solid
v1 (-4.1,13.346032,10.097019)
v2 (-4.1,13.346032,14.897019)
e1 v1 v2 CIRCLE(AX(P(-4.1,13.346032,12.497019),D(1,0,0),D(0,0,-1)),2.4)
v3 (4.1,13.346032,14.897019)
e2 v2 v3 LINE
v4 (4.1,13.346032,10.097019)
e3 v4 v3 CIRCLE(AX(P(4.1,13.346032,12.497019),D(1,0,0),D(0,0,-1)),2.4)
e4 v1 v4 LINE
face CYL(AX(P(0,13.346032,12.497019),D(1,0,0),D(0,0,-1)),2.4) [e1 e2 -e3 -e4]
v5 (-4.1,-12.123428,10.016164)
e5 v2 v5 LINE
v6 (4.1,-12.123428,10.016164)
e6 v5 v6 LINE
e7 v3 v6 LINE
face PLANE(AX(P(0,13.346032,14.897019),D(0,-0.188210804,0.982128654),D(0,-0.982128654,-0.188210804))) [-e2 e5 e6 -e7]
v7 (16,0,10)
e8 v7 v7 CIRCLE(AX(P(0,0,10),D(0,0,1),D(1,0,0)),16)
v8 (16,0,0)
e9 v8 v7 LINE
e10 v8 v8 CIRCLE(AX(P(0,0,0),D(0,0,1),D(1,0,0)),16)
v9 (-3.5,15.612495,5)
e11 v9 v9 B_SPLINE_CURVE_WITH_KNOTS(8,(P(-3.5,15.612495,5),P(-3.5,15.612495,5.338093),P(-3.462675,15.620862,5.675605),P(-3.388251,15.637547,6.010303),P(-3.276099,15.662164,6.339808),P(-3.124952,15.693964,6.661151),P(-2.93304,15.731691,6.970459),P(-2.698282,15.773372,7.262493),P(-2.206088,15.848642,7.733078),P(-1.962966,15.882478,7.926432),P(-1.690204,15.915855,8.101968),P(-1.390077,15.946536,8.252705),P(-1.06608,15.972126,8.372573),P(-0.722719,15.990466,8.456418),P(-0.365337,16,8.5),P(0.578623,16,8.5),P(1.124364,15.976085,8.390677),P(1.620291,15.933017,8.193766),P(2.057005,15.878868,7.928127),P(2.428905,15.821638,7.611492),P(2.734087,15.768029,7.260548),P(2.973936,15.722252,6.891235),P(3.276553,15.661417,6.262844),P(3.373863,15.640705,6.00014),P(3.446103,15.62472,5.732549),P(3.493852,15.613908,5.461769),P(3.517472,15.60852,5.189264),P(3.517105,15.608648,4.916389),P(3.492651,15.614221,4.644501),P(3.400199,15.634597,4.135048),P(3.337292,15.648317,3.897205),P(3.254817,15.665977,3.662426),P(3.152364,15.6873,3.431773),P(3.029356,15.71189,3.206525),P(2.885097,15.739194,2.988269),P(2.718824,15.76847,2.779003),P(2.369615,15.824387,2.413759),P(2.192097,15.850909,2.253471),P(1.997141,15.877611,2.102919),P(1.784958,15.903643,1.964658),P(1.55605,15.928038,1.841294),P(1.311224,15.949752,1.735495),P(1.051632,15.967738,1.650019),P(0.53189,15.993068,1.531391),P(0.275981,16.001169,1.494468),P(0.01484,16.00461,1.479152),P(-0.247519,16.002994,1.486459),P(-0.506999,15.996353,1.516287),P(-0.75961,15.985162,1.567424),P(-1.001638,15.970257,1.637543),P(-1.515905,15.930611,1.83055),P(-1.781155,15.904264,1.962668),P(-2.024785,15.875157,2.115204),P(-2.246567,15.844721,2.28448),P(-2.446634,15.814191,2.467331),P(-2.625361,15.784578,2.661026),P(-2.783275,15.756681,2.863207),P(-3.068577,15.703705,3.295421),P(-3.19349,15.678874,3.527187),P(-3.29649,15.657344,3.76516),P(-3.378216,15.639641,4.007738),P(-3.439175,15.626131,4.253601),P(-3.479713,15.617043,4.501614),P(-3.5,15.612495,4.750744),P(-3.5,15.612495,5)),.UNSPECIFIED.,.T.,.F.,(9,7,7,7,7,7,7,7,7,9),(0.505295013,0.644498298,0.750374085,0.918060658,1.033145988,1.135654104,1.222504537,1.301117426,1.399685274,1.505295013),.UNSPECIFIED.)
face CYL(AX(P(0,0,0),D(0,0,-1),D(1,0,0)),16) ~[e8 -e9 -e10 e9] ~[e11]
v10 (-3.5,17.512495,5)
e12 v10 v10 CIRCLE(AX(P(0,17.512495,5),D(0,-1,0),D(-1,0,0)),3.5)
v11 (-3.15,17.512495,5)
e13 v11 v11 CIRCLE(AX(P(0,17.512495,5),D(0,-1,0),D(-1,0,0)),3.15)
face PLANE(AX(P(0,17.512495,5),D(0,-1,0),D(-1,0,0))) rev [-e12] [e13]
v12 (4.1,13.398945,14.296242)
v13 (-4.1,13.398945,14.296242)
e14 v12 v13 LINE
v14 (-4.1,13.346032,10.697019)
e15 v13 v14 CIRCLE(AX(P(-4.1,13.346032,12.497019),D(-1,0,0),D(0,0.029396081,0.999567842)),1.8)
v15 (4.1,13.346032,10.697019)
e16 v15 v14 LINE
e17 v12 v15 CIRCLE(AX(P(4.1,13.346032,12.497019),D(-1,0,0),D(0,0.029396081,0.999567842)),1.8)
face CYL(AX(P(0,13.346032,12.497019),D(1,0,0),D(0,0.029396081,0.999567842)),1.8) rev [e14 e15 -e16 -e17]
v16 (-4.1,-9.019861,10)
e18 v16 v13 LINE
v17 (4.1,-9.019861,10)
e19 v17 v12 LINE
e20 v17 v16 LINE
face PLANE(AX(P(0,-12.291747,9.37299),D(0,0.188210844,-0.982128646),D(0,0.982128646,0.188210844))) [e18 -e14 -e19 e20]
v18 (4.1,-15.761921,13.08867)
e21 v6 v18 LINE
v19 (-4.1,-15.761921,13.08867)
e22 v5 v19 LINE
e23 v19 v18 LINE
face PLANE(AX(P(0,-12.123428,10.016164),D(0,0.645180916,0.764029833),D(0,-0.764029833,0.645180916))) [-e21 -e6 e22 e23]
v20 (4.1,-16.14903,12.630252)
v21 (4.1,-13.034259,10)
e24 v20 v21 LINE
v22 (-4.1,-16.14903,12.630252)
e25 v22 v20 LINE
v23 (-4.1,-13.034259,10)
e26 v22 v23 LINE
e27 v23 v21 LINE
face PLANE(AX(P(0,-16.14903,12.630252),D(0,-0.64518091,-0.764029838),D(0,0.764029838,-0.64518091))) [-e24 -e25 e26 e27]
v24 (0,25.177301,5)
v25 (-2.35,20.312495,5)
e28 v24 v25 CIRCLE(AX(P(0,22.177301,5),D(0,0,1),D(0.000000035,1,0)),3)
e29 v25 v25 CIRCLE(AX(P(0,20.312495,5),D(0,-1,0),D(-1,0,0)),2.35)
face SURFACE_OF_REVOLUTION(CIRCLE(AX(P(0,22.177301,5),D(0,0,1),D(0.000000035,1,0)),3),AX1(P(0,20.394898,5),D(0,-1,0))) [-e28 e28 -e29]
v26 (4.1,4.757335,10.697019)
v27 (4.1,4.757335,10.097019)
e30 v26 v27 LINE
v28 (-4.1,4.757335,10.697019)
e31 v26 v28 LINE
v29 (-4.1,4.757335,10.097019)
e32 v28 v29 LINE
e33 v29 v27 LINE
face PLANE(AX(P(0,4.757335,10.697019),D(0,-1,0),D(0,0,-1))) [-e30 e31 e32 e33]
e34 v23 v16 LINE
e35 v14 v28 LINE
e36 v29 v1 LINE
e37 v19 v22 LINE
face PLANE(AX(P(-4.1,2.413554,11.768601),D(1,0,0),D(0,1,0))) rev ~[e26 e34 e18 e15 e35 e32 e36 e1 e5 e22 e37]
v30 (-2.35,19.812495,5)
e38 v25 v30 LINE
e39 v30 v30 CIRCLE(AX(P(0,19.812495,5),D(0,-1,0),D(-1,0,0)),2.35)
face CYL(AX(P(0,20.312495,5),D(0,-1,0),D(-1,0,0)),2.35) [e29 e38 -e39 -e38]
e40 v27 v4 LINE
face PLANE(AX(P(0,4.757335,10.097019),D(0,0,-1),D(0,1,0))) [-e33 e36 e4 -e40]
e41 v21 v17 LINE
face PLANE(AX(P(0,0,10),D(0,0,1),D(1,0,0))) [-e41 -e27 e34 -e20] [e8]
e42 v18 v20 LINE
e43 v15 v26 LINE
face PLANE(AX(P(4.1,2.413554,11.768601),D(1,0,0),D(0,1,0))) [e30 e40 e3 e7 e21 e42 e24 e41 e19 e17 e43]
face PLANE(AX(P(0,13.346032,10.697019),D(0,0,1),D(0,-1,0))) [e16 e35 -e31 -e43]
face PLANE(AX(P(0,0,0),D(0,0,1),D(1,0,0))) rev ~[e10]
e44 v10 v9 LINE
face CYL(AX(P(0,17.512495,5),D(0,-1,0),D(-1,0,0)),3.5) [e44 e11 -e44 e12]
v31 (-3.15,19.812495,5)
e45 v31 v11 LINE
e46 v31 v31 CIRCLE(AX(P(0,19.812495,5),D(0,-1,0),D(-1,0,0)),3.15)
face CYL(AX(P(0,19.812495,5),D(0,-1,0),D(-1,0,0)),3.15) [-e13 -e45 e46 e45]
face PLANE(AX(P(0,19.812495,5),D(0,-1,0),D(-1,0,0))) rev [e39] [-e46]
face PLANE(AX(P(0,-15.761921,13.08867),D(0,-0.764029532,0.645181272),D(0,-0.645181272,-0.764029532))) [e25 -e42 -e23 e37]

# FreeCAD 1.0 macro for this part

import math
import FreeCAD as App
import Part
import Sketcher
from FreeCAD import Vector

doc = App.newDocument("Part")
body = doc.addObject("PartDesign::Body", "Body")

# Sketch on XY plane
sketch1 = body.newObject("Sketcher::SketchObject", "Sketch")
sketch1.AttachmentSupport = (doc.getObject("XY_Plane"), [""])
sketch1.MapMode = "FlatFace"
sketch1.addGeometry(Part.Circle(Vector(0, 0, 0), Vector(0, 0, 1), 16), False)
sketch1.addConstraint(Sketcher.Constraint("Coincident", 0, 3, -1, 1))
sketch1.addConstraint(Sketcher.Constraint("Diameter", 0, 32.0))
pad1 = body.newObject("PartDesign::Pad", "Pad")
pad1.Profile = sketch1
pad1.Length = 10

# Sketch on YZ plane
sketch2 = body.newObject("Sketcher::SketchObject", "Sketch001")
sketch2.AttachmentSupport = (doc.getObject("YZ_Plane"), [""])
sketch2.MapMode = "FlatFace"
sketch2.addGeometry(Part.LineSegment(Vector(4.757335, 10.697019, 0), Vector(4.757335, 10.097019, 0)), False)
sketch2.addGeometry(Part.LineSegment(Vector(4.757335, 10.097019, 0), Vector(13.346032, 10.097019, 0)), False)
sketch2.addGeometry(Part.ArcOfCircle(Part.Circle(Vector(13.346032, 12.497019, 0), Vector(0, 0, 1), 2.4), math.radians(-90), math.radians(90)), False)
sketch2.addGeometry(Part.LineSegment(Vector(13.346032, 14.897019, 0), Vector(-12.123428, 10.016164, 0)), False)
sketch2.addGeometry(Part.LineSegment(Vector(-12.123428, 10.016164, 0), Vector(-15.761921, 13.08867, 0)), False)
sketch2.addGeometry(Part.LineSegment(Vector(-15.761921, 13.08867, 0), Vector(-16.14903, 12.630252, 0)), False)
sketch2.addGeometry(Part.LineSegment(Vector(-16.14903, 12.630252, 0), Vector(-12.291747, 9.37299, 0)), False)
sketch2.addGeometry(Part.LineSegment(Vector(-12.291747, 9.37299, 0), Vector(13.398945, 14.296242, 0)), False)
sketch2.addGeometry(Part.ArcOfCircle(Part.Circle(Vector(13.346032, 12.497019, 0), Vector(0, 0, 1), 1.8), math.radians(-90.000001), math.radians(88.315486)), False)
sketch2.addGeometry(Part.LineSegment(Vector(13.346032, 10.697019, 0), Vector(4.757335, 10.697019, 0)), False)
sketch2.addConstraint(Sketcher.Constraint("Coincident", 0, 2, 1, 1))
sketch2.addConstraint(Sketcher.Constraint("Tangent", 1, 2, 2, 1))
sketch2.addConstraint(Sketcher.Constraint("Coincident", 2, 2, 3, 1))
sketch2.addConstraint(Sketcher.Constraint("Coincident", 3, 2, 4, 1))
sketch2.addConstraint(Sketcher.Constraint("Coincident", 4, 2, 5, 1))
sketch2.addConstraint(Sketcher.Constraint("Coincident", 5, 2, 6, 1))
sketch2.addConstraint(Sketcher.Constraint("Coincident", 6, 2, 7, 1))
sketch2.addConstraint(Sketcher.Constraint("Coincident", 7, 2, 8, 2))
sketch2.addConstraint(Sketcher.Constraint("Tangent", 8, 1, 9, 1))
sketch2.addConstraint(Sketcher.Constraint("Coincident", 9, 2, 0, 1))
sketch2.addConstraint(Sketcher.Constraint("Vertical", 0))
sketch2.addConstraint(Sketcher.Constraint("Horizontal", 1))
sketch2.addConstraint(Sketcher.Constraint("Horizontal", 9))
sketch2.addConstraint(Sketcher.Constraint("Coincident", 8, 3, 2, 3))
sketch2.addConstraint(Sketcher.Constraint("Perpendicular", 4, 5))
sketch2.addConstraint(Sketcher.Constraint("Perpendicular", 5, 6))
sketch2.addConstraint(Sketcher.Constraint("Parallel", 3, 7))
sketch2.addConstraint(Sketcher.Constraint("Vertical", 1, 2, 2, 2))
sketch2.addConstraint(Sketcher.Constraint("Radius", 2, 2.4))
sketch2.addConstraint(Sketcher.Constraint("Radius", 8, 1.8))
sketch2.addConstraint(Sketcher.Constraint("Distance", 5, 0.6))
sketch2.addConstraint(Sketcher.Constraint("DistanceX", 5, 2, 3, 2, 4.025602))
sketch2.addConstraint(Sketcher.Constraint("Distance", 4, 4.762239))
sketch2.addConstraint(Sketcher.Constraint("DistanceX", 1, 1, 1, 2, 8.588697))
sketch2.addConstraint(Sketcher.Constraint("DistanceX", -1, 1, 2, 3, 13.346032))
sketch2.addConstraint(Sketcher.Constraint("DistanceY", -1, 1, 2, 3, 12.497019))
sketch2.addConstraint(Sketcher.Constraint("DistanceX", 4, 2, -1, 1, 15.761921))
sketch2.addConstraint(Sketcher.Constraint("DistanceY", -1, 1, 4, 2, 13.08867))
sketch2.addConstraint(Sketcher.Constraint("DistanceY", -1, 1, 6, 2, 9.37299))
pad2 = body.newObject("PartDesign::Pad", "Pad001")
pad2.Profile = sketch2
pad2.Length = 8.2
pad2.Midplane = True

# Sketch on XY plane
sketch3 = body.newObject("Sketcher::SketchObject", "Sketch002")
sketch3.AttachmentSupport = (doc.getObject("XY_Plane"), [""])
sketch3.MapMode = "FlatFace"
sketch3.AttachmentOffset = App.Placement(Vector(0, 0, 5), App.Rotation())
sketch3.addGeometry(Part.LineSegment(Vector(-3.5, 15.612495, 0), Vector(0, 15.612495, 0)), False)
sketch3.addGeometry(Part.LineSegment(Vector(0, 15.612495, 0), Vector(0, 25.177301, 0)), False)
sketch3.addGeometry(Part.ArcOfCircle(Part.Circle(Vector(0, 22.177301, 0), Vector(0, 0, 1), 3), math.radians(89.999998), math.radians(218.433212)), False)
sketch3.addGeometry(Part.LineSegment(Vector(-2.35, 20.312495, 0), Vector(-2.35, 19.812495, 0)), False)
sketch3.addGeometry(Part.LineSegment(Vector(-2.35, 19.812495, 0), Vector(-3.15, 19.812495, 0)), False)
sketch3.addGeometry(Part.LineSegment(Vector(-3.15, 19.812495, 0), Vector(-3.15, 17.512495, 0)), False)
sketch3.addGeometry(Part.LineSegment(Vector(-3.15, 17.512495, 0), Vector(-3.5, 17.512495, 0)), False)
sketch3.addGeometry(Part.LineSegment(Vector(-3.5, 17.512495, 0), Vector(-3.5, 15.612495, 0)), False)
sketch3.addConstraint(Sketcher.Constraint("Coincident", 0, 2, 1, 1))
sketch3.addConstraint(Sketcher.Constraint("Coincident", 1, 2, 2, 1))
sketch3.addConstraint(Sketcher.Constraint("Coincident", 2, 2, 3, 1))
sketch3.addConstraint(Sketcher.Constraint("Coincident", 3, 2, 4, 1))
sketch3.addConstraint(Sketcher.Constraint("Coincident", 4, 2, 5, 1))
sketch3.addConstraint(Sketcher.Constraint("Coincident", 5, 2, 6, 1))
sketch3.addConstraint(Sketcher.Constraint("Coincident", 6, 2, 7, 1))
sketch3.addConstraint(Sketcher.Constraint("Coincident", 7, 2, 0, 1))
sketch3.addConstraint(Sketcher.Constraint("Horizontal", 0))
sketch3.addConstraint(Sketcher.Constraint("Vertical", 1))
sketch3.addConstraint(Sketcher.Constraint("Vertical", 3))
sketch3.addConstraint(Sketcher.Constraint("Horizontal", 4))
sketch3.addConstraint(Sketcher.Constraint("Vertical", 5))
sketch3.addConstraint(Sketcher.Constraint("Horizontal", 6))
sketch3.addConstraint(Sketcher.Constraint("Vertical", 7))
sketch3.addConstraint(Sketcher.Constraint("PointOnObject", 2, 3, -2))
sketch3.addConstraint(Sketcher.Constraint("PointOnObject", 0, 2, -2))
sketch3.addConstraint(Sketcher.Constraint("Radius", 2, 3.0))
sketch3.addConstraint(Sketcher.Constraint("DistanceX", 0, 1, 0, 2, 3.5))
sketch3.addConstraint(Sketcher.Constraint("DistanceX", 4, 2, 4, 1, 0.8))
sketch3.addConstraint(Sketcher.Constraint("DistanceY", 3, 2, 3, 1, 0.5))
sketch3.addConstraint(Sketcher.Constraint("DistanceY", 5, 2, 5, 1, 2.3))
sketch3.addConstraint(Sketcher.Constraint("DistanceY", 7, 2, 7, 1, 1.9))
sketch3.addConstraint(Sketcher.Constraint("DistanceX", 6, 2, 6, 1, 0.35))
sketch3.addConstraint(Sketcher.Constraint("DistanceY", -1, 1, 2, 3, 22.177301))
revolution = body.newObject("PartDesign::Revolution", "Revolution")
revolution.Profile = sketch3
revolution.ReferenceAxis = (sketch3, ["V_Axis"])
revolution.Angle = 360

doc.recompute()
